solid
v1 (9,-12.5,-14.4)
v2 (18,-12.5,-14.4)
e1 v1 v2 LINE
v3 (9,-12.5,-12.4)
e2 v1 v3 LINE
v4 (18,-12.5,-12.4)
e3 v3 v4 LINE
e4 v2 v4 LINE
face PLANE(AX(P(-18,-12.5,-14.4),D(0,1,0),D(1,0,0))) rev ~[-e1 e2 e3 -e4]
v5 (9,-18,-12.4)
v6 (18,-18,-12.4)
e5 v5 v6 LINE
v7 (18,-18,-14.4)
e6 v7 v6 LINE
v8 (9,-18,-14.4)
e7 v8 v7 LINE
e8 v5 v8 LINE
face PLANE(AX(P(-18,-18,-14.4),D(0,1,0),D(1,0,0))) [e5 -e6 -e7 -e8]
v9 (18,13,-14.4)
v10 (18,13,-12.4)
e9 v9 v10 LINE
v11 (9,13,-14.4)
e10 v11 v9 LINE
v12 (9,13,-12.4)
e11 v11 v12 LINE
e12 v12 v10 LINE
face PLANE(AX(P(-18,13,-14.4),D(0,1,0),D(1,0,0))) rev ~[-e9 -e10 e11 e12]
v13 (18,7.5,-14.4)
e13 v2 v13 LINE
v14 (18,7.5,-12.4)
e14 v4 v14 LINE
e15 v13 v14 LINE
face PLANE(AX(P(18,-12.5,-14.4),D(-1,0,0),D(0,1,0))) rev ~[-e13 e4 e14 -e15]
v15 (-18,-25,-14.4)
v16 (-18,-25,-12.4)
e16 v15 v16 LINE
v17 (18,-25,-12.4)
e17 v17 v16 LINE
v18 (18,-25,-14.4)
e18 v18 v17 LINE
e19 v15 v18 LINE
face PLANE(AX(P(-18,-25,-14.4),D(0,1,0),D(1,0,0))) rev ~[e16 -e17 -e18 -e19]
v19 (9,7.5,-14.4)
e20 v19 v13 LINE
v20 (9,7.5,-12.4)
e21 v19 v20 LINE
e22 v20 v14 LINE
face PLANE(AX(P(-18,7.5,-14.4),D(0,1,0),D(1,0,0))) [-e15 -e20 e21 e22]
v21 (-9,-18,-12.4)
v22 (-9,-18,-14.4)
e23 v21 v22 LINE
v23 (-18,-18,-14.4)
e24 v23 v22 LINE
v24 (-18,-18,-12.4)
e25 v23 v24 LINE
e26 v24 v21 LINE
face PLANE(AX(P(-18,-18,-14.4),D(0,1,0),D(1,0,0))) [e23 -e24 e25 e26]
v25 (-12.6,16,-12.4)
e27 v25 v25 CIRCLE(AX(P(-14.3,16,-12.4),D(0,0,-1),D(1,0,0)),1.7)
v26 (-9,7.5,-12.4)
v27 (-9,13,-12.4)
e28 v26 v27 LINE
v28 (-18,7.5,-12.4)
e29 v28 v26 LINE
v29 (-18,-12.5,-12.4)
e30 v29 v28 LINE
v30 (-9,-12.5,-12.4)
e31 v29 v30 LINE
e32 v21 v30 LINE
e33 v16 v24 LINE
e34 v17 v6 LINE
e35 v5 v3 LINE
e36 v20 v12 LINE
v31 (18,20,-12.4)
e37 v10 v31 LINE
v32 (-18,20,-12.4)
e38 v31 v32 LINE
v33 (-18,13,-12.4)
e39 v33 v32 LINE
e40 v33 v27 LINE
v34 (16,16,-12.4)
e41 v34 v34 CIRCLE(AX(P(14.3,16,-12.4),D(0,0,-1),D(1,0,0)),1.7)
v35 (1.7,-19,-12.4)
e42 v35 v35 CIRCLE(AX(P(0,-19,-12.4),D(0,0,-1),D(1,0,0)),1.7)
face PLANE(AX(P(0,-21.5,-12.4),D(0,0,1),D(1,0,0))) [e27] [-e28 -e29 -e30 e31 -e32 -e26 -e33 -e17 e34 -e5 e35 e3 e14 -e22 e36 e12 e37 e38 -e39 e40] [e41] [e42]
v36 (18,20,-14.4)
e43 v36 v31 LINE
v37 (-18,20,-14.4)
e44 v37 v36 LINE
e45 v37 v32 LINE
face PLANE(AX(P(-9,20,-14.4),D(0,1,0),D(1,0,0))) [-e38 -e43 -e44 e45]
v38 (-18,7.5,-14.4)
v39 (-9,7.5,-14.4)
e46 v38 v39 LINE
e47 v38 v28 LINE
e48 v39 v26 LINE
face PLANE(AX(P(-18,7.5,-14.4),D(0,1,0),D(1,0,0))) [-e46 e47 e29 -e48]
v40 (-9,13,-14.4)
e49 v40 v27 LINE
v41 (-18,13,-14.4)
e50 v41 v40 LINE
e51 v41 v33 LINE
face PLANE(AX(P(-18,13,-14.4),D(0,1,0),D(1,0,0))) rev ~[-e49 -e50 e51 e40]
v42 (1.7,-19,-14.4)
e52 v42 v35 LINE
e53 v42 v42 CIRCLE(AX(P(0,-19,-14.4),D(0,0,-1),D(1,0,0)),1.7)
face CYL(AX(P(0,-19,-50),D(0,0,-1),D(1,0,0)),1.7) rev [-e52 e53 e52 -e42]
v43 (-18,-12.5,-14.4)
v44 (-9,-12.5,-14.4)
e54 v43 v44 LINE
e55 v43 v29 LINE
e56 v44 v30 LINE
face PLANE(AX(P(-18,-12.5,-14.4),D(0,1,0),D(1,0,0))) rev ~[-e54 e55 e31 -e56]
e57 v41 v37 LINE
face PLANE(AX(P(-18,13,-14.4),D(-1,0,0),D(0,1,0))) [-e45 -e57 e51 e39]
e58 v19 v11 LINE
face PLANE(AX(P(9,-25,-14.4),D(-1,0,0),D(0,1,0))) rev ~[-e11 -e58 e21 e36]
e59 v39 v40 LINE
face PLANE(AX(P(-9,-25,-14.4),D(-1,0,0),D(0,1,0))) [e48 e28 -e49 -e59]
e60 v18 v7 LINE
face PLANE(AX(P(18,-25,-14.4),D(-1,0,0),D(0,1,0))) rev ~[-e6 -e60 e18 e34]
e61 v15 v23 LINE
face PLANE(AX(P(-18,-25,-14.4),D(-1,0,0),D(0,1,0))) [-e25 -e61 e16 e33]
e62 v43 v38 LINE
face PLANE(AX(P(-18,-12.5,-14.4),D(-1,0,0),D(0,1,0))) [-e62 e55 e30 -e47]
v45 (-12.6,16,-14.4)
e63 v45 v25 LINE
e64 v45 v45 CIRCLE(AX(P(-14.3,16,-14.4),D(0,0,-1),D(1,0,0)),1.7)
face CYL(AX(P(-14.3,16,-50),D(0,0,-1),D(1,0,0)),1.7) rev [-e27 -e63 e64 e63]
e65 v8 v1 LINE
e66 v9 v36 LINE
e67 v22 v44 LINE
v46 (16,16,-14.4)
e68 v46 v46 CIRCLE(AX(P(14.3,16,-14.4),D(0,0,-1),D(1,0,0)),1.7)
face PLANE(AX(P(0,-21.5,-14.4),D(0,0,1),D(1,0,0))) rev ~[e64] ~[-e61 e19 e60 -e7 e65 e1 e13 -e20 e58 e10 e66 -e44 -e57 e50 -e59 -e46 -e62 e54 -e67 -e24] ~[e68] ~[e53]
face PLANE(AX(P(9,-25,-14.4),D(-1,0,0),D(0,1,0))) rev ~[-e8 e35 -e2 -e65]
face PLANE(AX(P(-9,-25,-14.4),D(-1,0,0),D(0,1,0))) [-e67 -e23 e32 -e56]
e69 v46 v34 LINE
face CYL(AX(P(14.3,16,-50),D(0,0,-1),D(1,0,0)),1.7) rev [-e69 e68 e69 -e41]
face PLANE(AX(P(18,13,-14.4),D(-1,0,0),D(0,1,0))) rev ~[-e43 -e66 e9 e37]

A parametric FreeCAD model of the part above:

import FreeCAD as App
import Part
import Sketcher

V = App.Vector
Q = App.Units.Quantity

doc = App.newDocument("Part")
params = doc.addObject("Spreadsheet::Sheet", "Params")
for row, (alias, value) in enumerate([
    ("sketch1_diameter", "3.4 mm"),
    ("pad1_length", "100 mm"),
    ("sketch2_width", "36 mm"),
    ("sketch2_height", "7 mm"),
    ("pad2_length", "2 mm"),
    ("sketch3_width", "18 mm"),
    ("sketch3_height", "45 mm"),
    ("pad3_length", "2 mm"),
    ("sketch4_width", "36 mm"),
    ("sketch4_height", "7 mm"),
    ("pad4_length", "2 mm"),
    ("sketch5_width", "36 mm"),
    ("sketch5_height", "20 mm"),
    ("pad5_length", "2 mm"),
], start=1):
    params.set(f"A{row}", alias)
    params.set(f"B{row}", "=" + value)
    params.setAlias(f"B{row}", alias)

body = doc.addObject("PartDesign::Body", "Body")
body.AllowCompound = True

sketch1 = doc.addObject("Sketcher::SketchObject", "Sketch")
body.addObject(sketch1)
sketch1.AttachmentSupport = (doc.XY_Plane, [""])
sketch1.MapMode = "FlatFace"
sketch1.AttachmentOffset = App.Placement(V(0, 0, -50), App.Rotation())
sketch1.addGeometry([
    Part.Circle(V(0, -19, 0), V(0, 0, 1), 1.7),
    Part.Circle(V(-14.3, 16, 0), V(0, 0, 1), 1.7),
    Part.Circle(V(14.3, 16, 0), V(0, 0, 1), 1.7),
], False)
sketch1.addConstraint([
    Sketcher.Constraint("Equal", 0, 1),
    Sketcher.Constraint("Equal", 1, 2),
    Sketcher.Constraint("Symmetric", 1, 3, 2, 3, -2),
    Sketcher.Constraint("PointOnObject", 0, 3, -2),
    Sketcher.Constraint("Diameter", 0, Q("3.4 mm")),
    Sketcher.Constraint("DistanceY", 0, 3, -1, 1, Q("19 mm")),
    Sketcher.Constraint("DistanceY", -1, 1, 1, 3, Q("16 mm")),
    Sketcher.Constraint("DistanceX", 1, 3, -1, 1, Q("14.3 mm")),
])
sketch1.setExpression("Constraints[4]", "Params.sketch1_diameter")
pad1 = doc.addObject("PartDesign::Pad", "Pad")
body.addObject(pad1)
pad1.Profile = sketch1
pad1.setExpression("Length", "Params.pad1_length")
body2 = doc.addObject("PartDesign::Body", "Body001")

sketch2 = doc.addObject("Sketcher::SketchObject", "Sketch001")
body2.addObject(sketch2)
sketch2.AttachmentSupport = (doc.getObject("XY_Plane001"), [""])
sketch2.MapMode = "FlatFace"
sketch2.AttachmentOffset = App.Placement(V(0, 0, -14.4), App.Rotation())
sketch2.addGeometry([
    Part.LineSegment(V(-18, 20, 0), V(-18, 13, 0)),
    Part.LineSegment(V(-18, 13, 0), V(18, 13, 0)),
    Part.LineSegment(V(18, 13, 0), V(18, 20, 0)),
    Part.LineSegment(V(18, 20, 0), V(-18, 20, 0)),
], False)
sketch2.addConstraint([
    Sketcher.Constraint("Coincident", 0, 2, 1, 1),
    Sketcher.Constraint("Coincident", 1, 2, 2, 1),
    Sketcher.Constraint("Coincident", 2, 2, 3, 1),
    Sketcher.Constraint("Coincident", 3, 2, 0, 1),
    Sketcher.Constraint("Vertical", 0),
    Sketcher.Constraint("Horizontal", 1),
    Sketcher.Constraint("Vertical", 2),
    Sketcher.Constraint("Horizontal", 3),
    Sketcher.Constraint("DistanceX", 1, 1, 1, 2, Q("36 mm")),
    Sketcher.Constraint("DistanceY", 0, 2, 0, 1, Q("7 mm")),
    Sketcher.Constraint("DistanceX", 0, 2, -1, 1, Q("18 mm")),
    Sketcher.Constraint("DistanceY", -1, 1, 0, 2, Q("13 mm")),
])
sketch2.setExpression("Constraints[8]", "Params.sketch2_width")
sketch2.setExpression("Constraints[9]", "Params.sketch2_height")
pad2 = doc.addObject("PartDesign::Pad", "Pad001")
body2.addObject(pad2)
pad2.Profile = sketch2
pad2.setExpression("Length", "Params.pad2_length")
body3 = doc.addObject("PartDesign::Body", "Body002")

sketch3 = doc.addObject("Sketcher::SketchObject", "Sketch002")
body3.addObject(sketch3)
sketch3.AttachmentSupport = (doc.getObject("XY_Plane002"), [""])
sketch3.MapMode = "FlatFace"
sketch3.AttachmentOffset = App.Placement(V(0, 0, -14.4), App.Rotation())
sketch3.addGeometry([
    Part.LineSegment(V(-9, 20, 0), V(-9, -25, 0)),
    Part.LineSegment(V(-9, -25, 0), V(9, -25, 0)),
    Part.LineSegment(V(9, -25, 0), V(9, 20, 0)),
    Part.LineSegment(V(9, 20, 0), V(-9, 20, 0)),
], False)
sketch3.addConstraint([
    Sketcher.Constraint("Coincident", 0, 2, 1, 1),
    Sketcher.Constraint("Coincident", 1, 2, 2, 1),
    Sketcher.Constraint("Coincident", 2, 2, 3, 1),
    Sketcher.Constraint("Coincident", 3, 2, 0, 1),
    Sketcher.Constraint("Vertical", 0),
    Sketcher.Constraint("Horizontal", 1),
    Sketcher.Constraint("Vertical", 2),
    Sketcher.Constraint("Horizontal", 3),
    Sketcher.Constraint("DistanceX", 1, 1, 1, 2, Q("18 mm")),
    Sketcher.Constraint("DistanceY", 0, 2, 0, 1, Q("45 mm")),
    Sketcher.Constraint("DistanceX", 0, 2, -1, 1, Q("9 mm")),
    Sketcher.Constraint("DistanceY", 0, 2, -1, 1, Q("25 mm")),
])
sketch3.setExpression("Constraints[8]", "Params.sketch3_width")
sketch3.setExpression("Constraints[9]", "Params.sketch3_height")
pad3 = doc.addObject("PartDesign::Pad", "Pad002")
body3.addObject(pad3)
pad3.Profile = sketch3
pad3.setExpression("Length", "Params.pad3_length")
body4 = doc.addObject("PartDesign::Body", "Body003")

sketch4 = doc.addObject("Sketcher::SketchObject", "Sketch003")
body4.addObject(sketch4)
sketch4.AttachmentSupport = (doc.getObject("XY_Plane003"), [""])
sketch4.MapMode = "FlatFace"
sketch4.AttachmentOffset = App.Placement(V(0, 0, -14.4), App.Rotation())
sketch4.addGeometry([
    Part.LineSegment(V(-18, -18, 0), V(-18, -25, 0)),
    Part.LineSegment(V(-18, -25, 0), V(18, -25, 0)),
    Part.LineSegment(V(18, -25, 0), V(18, -18, 0)),
    Part.LineSegment(V(18, -18, 0), V(-18, -18, 0)),
], False)
sketch4.addConstraint([
    Sketcher.Constraint("Coincident", 0, 2, 1, 1),
    Sketcher.Constraint("Coincident", 1, 2, 2, 1),
    Sketcher.Constraint("Coincident", 2, 2, 3, 1),
    Sketcher.Constraint("Coincident", 3, 2, 0, 1),
    Sketcher.Constraint("Vertical", 0),
    Sketcher.Constraint("Horizontal", 1),
    Sketcher.Constraint("Vertical", 2),
    Sketcher.Constraint("Horizontal", 3),
    Sketcher.Constraint("DistanceX", 1, 1, 1, 2, Q("36 mm")),
    Sketcher.Constraint("DistanceY", 0, 2, 0, 1, Q("7 mm")),
    Sketcher.Constraint("DistanceX", 0, 2, -1, 1, Q("18 mm")),
    Sketcher.Constraint("DistanceY", 0, 2, -1, 1, Q("25 mm")),
])
sketch4.setExpression("Constraints[8]", "Params.sketch4_width")
sketch4.setExpression("Constraints[9]", "Params.sketch4_height")
pad4 = doc.addObject("PartDesign::Pad", "Pad003")
body4.addObject(pad4)
pad4.Profile = sketch4
pad4.setExpression("Length", "Params.pad4_length")
body5 = doc.addObject("PartDesign::Body", "Body004")
body5.AllowCompound = True

sketch5 = doc.addObject("Sketcher::SketchObject", "Sketch004")
body5.addObject(sketch5)
sketch5.AttachmentSupport = (doc.getObject("XY_Plane004"), [""])
sketch5.MapMode = "FlatFace"
sketch5.AttachmentOffset = App.Placement(V(0, 0, -14.4), App.Rotation())
sketch5.addGeometry([
    Part.LineSegment(V(-18, 7.5, 0), V(-18, -12.5, 0)),
    Part.LineSegment(V(-18, -12.5, 0), V(18, -12.5, 0)),
    Part.LineSegment(V(18, -12.5, 0), V(18, 7.5, 0)),
    Part.LineSegment(V(18, 7.5, 0), V(-18, 7.5, 0)),
], False)
sketch5.addConstraint([
    Sketcher.Constraint("Coincident", 0, 2, 1, 1),
    Sketcher.Constraint("Coincident", 1, 2, 2, 1),
    Sketcher.Constraint("Coincident", 2, 2, 3, 1),
    Sketcher.Constraint("Coincident", 3, 2, 0, 1),
    Sketcher.Constraint("Vertical", 0),
    Sketcher.Constraint("Horizontal", 1),
    Sketcher.Constraint("Vertical", 2),
    Sketcher.Constraint("Horizontal", 3),
    Sketcher.Constraint("DistanceX", 1, 1, 1, 2, Q("36 mm")),
    Sketcher.Constraint("DistanceY", 0, 2, 0, 1, Q("20 mm")),
    Sketcher.Constraint("DistanceX", 0, 2, -1, 1, Q("18 mm")),
    Sketcher.Constraint("DistanceY", 0, 2, -1, 1, Q("12.5 mm")),
])
sketch5.setExpression("Constraints[8]", "Params.sketch5_width")
sketch5.setExpression("Constraints[9]", "Params.sketch5_height")
pad5 = doc.addObject("PartDesign::Pad", "Pad004")
body5.addObject(pad5)
pad5.Profile = sketch5
pad5.setExpression("Length", "Params.pad5_length")
doc.recompute()

boolean = doc.addObject("PartDesign::Boolean", "Boolean")
body5.addObject(boolean)
boolean.Type = "Fuse"
boolean.addObjects([body2])
doc.recompute()

boolean2 = doc.addObject("PartDesign::Boolean", "Boolean001")
body5.addObject(boolean2)
boolean2.Type = "Fuse"
boolean2.addObjects([body3])
doc.recompute()

boolean3 = doc.addObject("PartDesign::Boolean", "Boolean002")
body5.addObject(boolean3)
boolean3.Type = "Fuse"
boolean3.addObjects([body4])
doc.recompute()

boolean4 = doc.addObject("PartDesign::Boolean", "Boolean003")
body5.addObject(boolean4)
boolean4.Type = "Cut"
boolean4.addObjects([body])

doc.recompute()
